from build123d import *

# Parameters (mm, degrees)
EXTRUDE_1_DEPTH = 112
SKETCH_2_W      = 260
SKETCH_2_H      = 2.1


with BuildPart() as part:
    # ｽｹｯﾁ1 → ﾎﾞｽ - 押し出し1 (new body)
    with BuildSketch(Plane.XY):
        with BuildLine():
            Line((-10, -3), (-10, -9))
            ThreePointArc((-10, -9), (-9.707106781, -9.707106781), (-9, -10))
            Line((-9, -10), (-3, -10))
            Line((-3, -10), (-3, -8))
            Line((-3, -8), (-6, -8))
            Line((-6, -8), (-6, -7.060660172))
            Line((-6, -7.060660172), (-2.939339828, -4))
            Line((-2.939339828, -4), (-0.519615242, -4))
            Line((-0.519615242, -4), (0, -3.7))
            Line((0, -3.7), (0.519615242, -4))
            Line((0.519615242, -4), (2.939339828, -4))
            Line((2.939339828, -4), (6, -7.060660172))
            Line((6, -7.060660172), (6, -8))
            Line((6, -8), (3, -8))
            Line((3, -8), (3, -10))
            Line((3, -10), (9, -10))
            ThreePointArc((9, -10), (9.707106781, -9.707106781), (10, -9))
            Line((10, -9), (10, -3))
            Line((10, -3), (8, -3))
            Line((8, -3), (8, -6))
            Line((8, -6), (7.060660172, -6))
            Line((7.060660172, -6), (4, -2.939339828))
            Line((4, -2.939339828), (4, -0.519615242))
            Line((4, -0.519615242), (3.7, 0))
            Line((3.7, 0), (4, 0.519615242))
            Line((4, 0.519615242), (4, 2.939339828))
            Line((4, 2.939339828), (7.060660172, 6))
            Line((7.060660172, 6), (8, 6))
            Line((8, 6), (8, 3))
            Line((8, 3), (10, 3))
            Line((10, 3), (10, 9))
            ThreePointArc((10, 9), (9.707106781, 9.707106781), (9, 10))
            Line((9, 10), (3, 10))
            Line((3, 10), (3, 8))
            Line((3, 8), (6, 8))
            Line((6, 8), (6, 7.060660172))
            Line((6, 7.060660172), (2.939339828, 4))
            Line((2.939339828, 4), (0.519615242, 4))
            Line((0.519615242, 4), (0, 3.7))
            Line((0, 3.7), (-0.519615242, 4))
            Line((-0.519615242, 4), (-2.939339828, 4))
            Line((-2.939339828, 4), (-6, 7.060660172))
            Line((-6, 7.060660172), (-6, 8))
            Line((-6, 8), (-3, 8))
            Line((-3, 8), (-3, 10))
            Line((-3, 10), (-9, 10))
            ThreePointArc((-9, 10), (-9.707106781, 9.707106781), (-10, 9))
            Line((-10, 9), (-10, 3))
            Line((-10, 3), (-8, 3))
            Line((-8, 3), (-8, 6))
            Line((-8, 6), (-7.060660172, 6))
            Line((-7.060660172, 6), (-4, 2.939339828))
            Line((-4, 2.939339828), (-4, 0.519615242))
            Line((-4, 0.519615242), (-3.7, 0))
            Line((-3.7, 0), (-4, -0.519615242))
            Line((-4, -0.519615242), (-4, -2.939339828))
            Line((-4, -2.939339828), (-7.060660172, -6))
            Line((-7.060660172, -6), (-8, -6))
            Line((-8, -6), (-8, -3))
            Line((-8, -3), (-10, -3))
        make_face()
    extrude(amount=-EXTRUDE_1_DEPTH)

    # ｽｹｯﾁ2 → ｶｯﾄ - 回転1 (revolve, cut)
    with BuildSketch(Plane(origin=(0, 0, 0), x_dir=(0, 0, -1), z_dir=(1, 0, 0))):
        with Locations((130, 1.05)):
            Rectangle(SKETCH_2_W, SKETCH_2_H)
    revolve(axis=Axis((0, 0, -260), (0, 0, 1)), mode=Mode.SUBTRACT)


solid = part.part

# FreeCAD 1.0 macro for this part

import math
import FreeCAD as App
import Part
import Sketcher
Q = App.Units.Quantity


def add_polygon(sketch, points):
    """Adds a closed chain of lines whose ends are joined by coincident constraints."""
    first, n = sketch.GeometryCount, len(points)
    for a, b in zip(points, points[1:] + points[:1]):
        sketch.addGeometry(Part.LineSegment(App.Vector(*a, 0), App.Vector(*b, 0)), False)
    for i in range(n):
        sketch.addConstraint(Sketcher.Constraint("Coincident", first + i, 2, first + (i + 1) % n, 1))

doc = App.newDocument("Part")
params = doc.addObject("Spreadsheet::Sheet", "Params")
for row, (alias, value) in enumerate([
    ("sketch1_radius", "1 mm"),
    ("sketch1_width", "6 mm"),
    ("sketch1_width2", "3 mm"),
    ("sketch1_width3", "2 mm"),
    ("sketch1_length", "0.6 mm"),
    ("pad1_length", "112 mm"),
    ("sketch2_height", "260 mm"),
    ("sketch2_width", "2.1 mm"),
    ("groove_angle", "360 deg"),
], start=1):
    params.set(f"A{row}", alias)
    params.set(f"B{row}", "=" + value)
    params.setAlias(f"B{row}", alias)

body = doc.addObject("PartDesign::Body", "Body")

# Sketch on XY plane
sketch1 = body.newObject("Sketcher::SketchObject", "Sketch")
sketch1.AttachmentSupport = (doc.getObject("XY_Plane"), [""])
sketch1.MapMode = "FlatFace"
sketch1.addGeometry(Part.LineSegment(App.Vector(-10, -3, 0), App.Vector(-10, -9, 0)), False)
sketch1.addGeometry(Part.ArcOfCircle(Part.Circle(App.Vector(-9, -9, 0), App.Vector(0, 0, 1), 1), math.radians(-180), math.radians(-90)), False)
sketch1.addGeometry(Part.LineSegment(App.Vector(-9, -10, 0), App.Vector(-3, -10, 0)), False)
sketch1.addGeometry(Part.LineSegment(App.Vector(-3, -10, 0), App.Vector(-3, -8, 0)), False)
sketch1.addGeometry(Part.LineSegment(App.Vector(-3, -8, 0), App.Vector(-6, -8, 0)), False)
sketch1.addGeometry(Part.LineSegment(App.Vector(-6, -8, 0), App.Vector(-6, -7.1, 0)), False)
sketch1.addGeometry(Part.LineSegment(App.Vector(-6, -7.1, 0), App.Vector(-2.9, -4, 0)), False)
sketch1.addGeometry(Part.LineSegment(App.Vector(-2.9, -4, 0), App.Vector(-0.5, -4, 0)), False)
sketch1.addGeometry(Part.LineSegment(App.Vector(-0.5, -4, 0), App.Vector(0, -3.7, 0)), False)
sketch1.addGeometry(Part.LineSegment(App.Vector(0, -3.7, 0), App.Vector(0.5, -4, 0)), False)
sketch1.addGeometry(Part.LineSegment(App.Vector(0.5, -4, 0), App.Vector(2.9, -4, 0)), False)
sketch1.addGeometry(Part.LineSegment(App.Vector(2.9, -4, 0), App.Vector(6, -7.1, 0)), False)
sketch1.addGeometry(Part.LineSegment(App.Vector(6, -7.1, 0), App.Vector(6, -8, 0)), False)
sketch1.addGeometry(Part.LineSegment(App.Vector(6, -8, 0), App.Vector(3, -8, 0)), False)
sketch1.addGeometry(Part.LineSegment(App.Vector(3, -8, 0), App.Vector(3, -10, 0)), False)
sketch1.addGeometry(Part.LineSegment(App.Vector(3, -10, 0), App.Vector(9, -10, 0)), False)
sketch1.addGeometry(Part.ArcOfCircle(Part.Circle(App.Vector(9, -9, 0), App.Vector(0, 0, 1), 1), math.radians(-90), math.radians(0)), False)
sketch1.addGeometry(Part.LineSegment(App.Vector(10, -9, 0), App.Vector(10, -3, 0)), False)
sketch1.addGeometry(Part.LineSegment(App.Vector(10, -3, 0), App.Vector(8, -3, 0)), False)
sketch1.addGeometry(Part.LineSegment(App.Vector(8, -3, 0), App.Vector(8, -6, 0)), False)
sketch1.addGeometry(Part.LineSegment(App.Vector(8, -6, 0), App.Vector(7.1, -6, 0)), False)
sketch1.addGeometry(Part.LineSegment(App.Vector(7.1, -6, 0), App.Vector(4, -2.9, 0)), False)
sketch1.addGeometry(Part.LineSegment(App.Vector(4, -2.9, 0), App.Vector(4, -0.5, 0)), False)
sketch1.addGeometry(Part.LineSegment(App.Vector(4, -0.5, 0), App.Vector(3.7, 0, 0)), False)
sketch1.addGeometry(Part.LineSegment(App.Vector(3.7, 0, 0), App.Vector(4, 0.5, 0)), False)
sketch1.addGeometry(Part.LineSegment(App.Vector(4, 0.5, 0), App.Vector(4, 2.9, 0)), False)
sketch1.addGeometry(Part.LineSegment(App.Vector(4, 2.9, 0), App.Vector(7.1, 6, 0)), False)
sketch1.addGeometry(Part.LineSegment(App.Vector(7.1, 6, 0), App.Vector(8, 6, 0)), False)
sketch1.addGeometry(Part.LineSegment(App.Vector(8, 6, 0), App.Vector(8, 3, 0)), False)
sketch1.addGeometry(Part.LineSegment(App.Vector(8, 3, 0), App.Vector(10, 3, 0)), False)
sketch1.addGeometry(Part.LineSegment(App.Vector(10, 3, 0), App.Vector(10, 9, 0)), False)
sketch1.addGeometry(Part.ArcOfCircle(Part.Circle(App.Vector(9, 9, 0), App.Vector(0, 0, 1), 1), math.radians(0), math.radians(90)), False)
sketch1.addGeometry(Part.LineSegment(App.Vector(9, 10, 0), App.Vector(3, 10, 0)), False)
sketch1.addGeometry(Part.LineSegment(App.Vector(3, 10, 0), App.Vector(3, 8, 0)), False)
sketch1.addGeometry(Part.LineSegment(App.Vector(3, 8, 0), App.Vector(6, 8, 0)), False)
sketch1.addGeometry(Part.LineSegment(App.Vector(6, 8, 0), App.Vector(6, 7.1, 0)), False)
sketch1.addGeometry(Part.LineSegment(App.Vector(6, 7.1, 0), App.Vector(2.9, 4, 0)), False)
sketch1.addGeometry(Part.LineSegment(App.Vector(2.9, 4, 0), App.Vector(0.5, 4, 0)), False)
sketch1.addGeometry(Part.LineSegment(App.Vector(0.5, 4, 0), App.Vector(0, 3.7, 0)), False)
sketch1.addGeometry(Part.LineSegment(App.Vector(0, 3.7, 0), App.Vector(-0.5, 4, 0)), False)
sketch1.addGeometry(Part.LineSegment(App.Vector(-0.5, 4, 0), App.Vector(-2.9, 4, 0)), False)
sketch1.addGeometry(Part.LineSegment(App.Vector(-2.9, 4, 0), App.Vector(-6, 7.1, 0)), False)
sketch1.addGeometry(Part.LineSegment(App.Vector(-6, 7.1, 0), App.Vector(-6, 8, 0)), False)
sketch1.addGeometry(Part.LineSegment(App.Vector(-6, 8, 0), App.Vector(-3, 8, 0)), False)
sketch1.addGeometry(Part.LineSegment(App.Vector(-3, 8, 0), App.Vector(-3, 10, 0)), False)
sketch1.addGeometry(Part.LineSegment(App.Vector(-3, 10, 0), App.Vector(-9, 10, 0)), False)
sketch1.addGeometry(Part.ArcOfCircle(Part.Circle(App.Vector(-9, 9, 0), App.Vector(0, 0, 1), 1), math.radians(90), math.radians(180)), False)
sketch1.addGeometry(Part.LineSegment(App.Vector(-10, 9, 0), App.Vector(-10, 3, 0)), False)
sketch1.addGeometry(Part.LineSegment(App.Vector(-10, 3, 0), App.Vector(-8, 3, 0)), False)
sketch1.addGeometry(Part.LineSegment(App.Vector(-8, 3, 0), App.Vector(-8, 6, 0)), False)
sketch1.addGeometry(Part.LineSegment(App.Vector(-8, 6, 0), App.Vector(-7.1, 6, 0)), False)
sketch1.addGeometry(Part.LineSegment(App.Vector(-7.1, 6, 0), App.Vector(-4, 2.9, 0)), False)
sketch1.addGeometry(Part.LineSegment(App.Vector(-4, 2.9, 0), App.Vector(-4, 0.5, 0)), False)
sketch1.addGeometry(Part.LineSegment(App.Vector(-4, 0.5, 0), App.Vector(-3.7, 0, 0)), False)
sketch1.addGeometry(Part.LineSegment(App.Vector(-3.7, 0, 0), App.Vector(-4, -0.5, 0)), False)
sketch1.addGeometry(Part.LineSegment(App.Vector(-4, -0.5, 0), App.Vector(-4, -2.9, 0)), False)
sketch1.addGeometry(Part.LineSegment(App.Vector(-4, -2.9, 0), App.Vector(-7.1, -6, 0)), False)
sketch1.addGeometry(Part.LineSegment(App.Vector(-7.1, -6, 0), App.Vector(-8, -6, 0)), False)
sketch1.addGeometry(Part.LineSegment(App.Vector(-8, -6, 0), App.Vector(-8, -3, 0)), False)
sketch1.addGeometry(Part.LineSegment(App.Vector(-8, -3, 0), App.Vector(-10, -3, 0)), False)
sketch1.addConstraint(Sketcher.Constraint("Tangent", 0, 2, 1, 1))
sketch1.addConstraint(Sketcher.Constraint("Tangent", 1, 2, 2, 1))
sketch1.addConstraint(Sketcher.Constraint("Coincident", 2, 2, 3, 1))
sketch1.addConstraint(Sketcher.Constraint("Coincident", 3, 2, 4, 1))
sketch1.addConstraint(Sketcher.Constraint("Coincident", 4, 2, 5, 1))
sketch1.addConstraint(Sketcher.Constraint("Coincident", 5, 2, 6, 1))
sketch1.addConstraint(Sketcher.Constraint("Coincident", 6, 2, 7, 1))
sketch1.addConstraint(Sketcher.Constraint("Coincident", 7, 2, 8, 1))
sketch1.addConstraint(Sketcher.Constraint("Coincident", 8, 2, 9, 1))
sketch1.addConstraint(Sketcher.Constraint("Coincident", 9, 2, 10, 1))
sketch1.addConstraint(Sketcher.Constraint("Coincident", 10, 2, 11, 1))
sketch1.addConstraint(Sketcher.Constraint("Coincident", 11, 2, 12, 1))
sketch1.addConstraint(Sketcher.Constraint("Coincident", 12, 2, 13, 1))
sketch1.addConstraint(Sketcher.Constraint("Coincident", 13, 2, 14, 1))
sketch1.addConstraint(Sketcher.Constraint("Coincident", 14, 2, 15, 1))
sketch1.addConstraint(Sketcher.Constraint("Tangent", 15, 2, 16, 1))
sketch1.addConstraint(Sketcher.Constraint("Tangent", 16, 2, 17, 1))
sketch1.addConstraint(Sketcher.Constraint("Coincident", 17, 2, 18, 1))
sketch1.addConstraint(Sketcher.Constraint("Coincident", 18, 2, 19, 1))
sketch1.addConstraint(Sketcher.Constraint("Coincident", 19, 2, 20, 1))
sketch1.addConstraint(Sketcher.Constraint("Coincident", 20, 2, 21, 1))
sketch1.addConstraint(Sketcher.Constraint("Coincident", 21, 2, 22, 1))
sketch1.addConstraint(Sketcher.Constraint("Coincident", 22, 2, 23, 1))
sketch1.addConstraint(Sketcher.Constraint("Coincident", 23, 2, 24, 1))
sketch1.addConstraint(Sketcher.Constraint("Coincident", 24, 2, 25, 1))
sketch1.addConstraint(Sketcher.Constraint("Coincident", 25, 2, 26, 1))
sketch1.addConstraint(Sketcher.Constraint("Coincident", 26, 2, 27, 1))
sketch1.addConstraint(Sketcher.Constraint("Coincident", 27, 2, 28, 1))
sketch1.addConstraint(Sketcher.Constraint("Coincident", 28, 2, 29, 1))
sketch1.addConstraint(Sketcher.Constraint("Coincident", 29, 2, 30, 1))
sketch1.addConstraint(Sketcher.Constraint("Tangent", 30, 2, 31, 1))
sketch1.addConstraint(Sketcher.Constraint("Tangent", 31, 2, 32, 1))
sketch1.addConstraint(Sketcher.Constraint("Coincident", 32, 2, 33, 1))
sketch1.addConstraint(Sketcher.Constraint("Coincident", 33, 2, 34, 1))
sketch1.addConstraint(Sketcher.Constraint("Coincident", 34, 2, 35, 1))
sketch1.addConstraint(Sketcher.Constraint("Coincident", 35, 2, 36, 1))
sketch1.addConstraint(Sketcher.Constraint("Coincident", 36, 2, 37, 1))
sketch1.addConstraint(Sketcher.Constraint("Coincident", 37, 2, 38, 1))
sketch1.addConstraint(Sketcher.Constraint("Coincident", 38, 2, 39, 1))
sketch1.addConstraint(Sketcher.Constraint("Coincident", 39, 2, 40, 1))
sketch1.addConstraint(Sketcher.Constraint("Coincident", 40, 2, 41, 1))
sketch1.addConstraint(Sketcher.Constraint("Coincident", 41, 2, 42, 1))
sketch1.addConstraint(Sketcher.Constraint("Coincident", 42, 2, 43, 1))
sketch1.addConstraint(Sketcher.Constraint("Coincident", 43, 2, 44, 1))
sketch1.addConstraint(Sketcher.Constraint("Coincident", 44, 2, 45, 1))
sketch1.addConstraint(Sketcher.Constraint("Tangent", 45, 2, 46, 1))
sketch1.addConstraint(Sketcher.Constraint("Tangent", 46, 2, 47, 1))
sketch1.addConstraint(Sketcher.Constraint("Coincident", 47, 2, 48, 1))
sketch1.addConstraint(Sketcher.Constraint("Coincident", 48, 2, 49, 1))
sketch1.addConstraint(Sketcher.Constraint("Coincident", 49, 2, 50, 1))
sketch1.addConstraint(Sketcher.Constraint("Coincident", 50, 2, 51, 1))
sketch1.addConstraint(Sketcher.Constraint("Coincident", 51, 2, 52, 1))
sketch1.addConstraint(Sketcher.Constraint("Coincident", 52, 2, 53, 1))
sketch1.addConstraint(Sketcher.Constraint("Coincident", 53, 2, 54, 1))
sketch1.addConstraint(Sketcher.Constraint("Coincident", 54, 2, 55, 1))
sketch1.addConstraint(Sketcher.Constraint("Coincident", 55, 2, 56, 1))
sketch1.addConstraint(Sketcher.Constraint("Coincident", 56, 2, 57, 1))
sketch1.addConstraint(Sketcher.Constraint("Coincident", 57, 2, 58, 1))
sketch1.addConstraint(Sketcher.Constraint("Coincident", 58, 2, 59, 1))
sketch1.addConstraint(Sketcher.Constraint("Coincident", 59, 2, 0, 1))
sketch1.addConstraint(Sketcher.Constraint("Vertical", 0))
sketch1.addConstraint(Sketcher.Constraint("Horizontal", 2))
sketch1.addConstraint(Sketcher.Constraint("Vertical", 3))
sketch1.addConstraint(Sketcher.Constraint("Horizontal", 4))
sketch1.addConstraint(Sketcher.Constraint("Vertical", 5))
sketch1.addConstraint(Sketcher.Constraint("Horizontal", 7))
sketch1.addConstraint(Sketcher.Constraint("Horizontal", 10))
sketch1.addConstraint(Sketcher.Constraint("Vertical", 12))
sketch1.addConstraint(Sketcher.Constraint("Horizontal", 13))
sketch1.addConstraint(Sketcher.Constraint("Vertical", 14))
sketch1.addConstraint(Sketcher.Constraint("Horizontal", 15))
sketch1.addConstraint(Sketcher.Constraint("Vertical", 17))
sketch1.addConstraint(Sketcher.Constraint("Horizontal", 18))
sketch1.addConstraint(Sketcher.Constraint("Vertical", 19))
sketch1.addConstraint(Sketcher.Constraint("Horizontal", 20))
sketch1.addConstraint(Sketcher.Constraint("Vertical", 22))
sketch1.addConstraint(Sketcher.Constraint("Vertical", 25))
sketch1.addConstraint(Sketcher.Constraint("Horizontal", 27))
sketch1.addConstraint(Sketcher.Constraint("Vertical", 28))
sketch1.addConstraint(Sketcher.Constraint("Horizontal", 29))
sketch1.addConstraint(Sketcher.Constraint("Vertical", 30))
sketch1.addConstraint(Sketcher.Constraint("Horizontal", 32))
sketch1.addConstraint(Sketcher.Constraint("Vertical", 33))
sketch1.addConstraint(Sketcher.Constraint("Horizontal", 34))
sketch1.addConstraint(Sketcher.Constraint("Vertical", 35))
sketch1.addConstraint(Sketcher.Constraint("Horizontal", 37))
sketch1.addConstraint(Sketcher.Constraint("Horizontal", 40))
sketch1.addConstraint(Sketcher.Constraint("Vertical", 42))
sketch1.addConstraint(Sketcher.Constraint("Horizontal", 43))
sketch1.addConstraint(Sketcher.Constraint("Vertical", 44))
sketch1.addConstraint(Sketcher.Constraint("Horizontal", 45))
sketch1.addConstraint(Sketcher.Constraint("Vertical", 47))
sketch1.addConstraint(Sketcher.Constraint("Horizontal", 48))
sketch1.addConstraint(Sketcher.Constraint("Vertical", 49))
sketch1.addConstraint(Sketcher.Constraint("Horizontal", 50))
sketch1.addConstraint(Sketcher.Constraint("Vertical", 52))
sketch1.addConstraint(Sketcher.Constraint("Vertical", 55))
sketch1.addConstraint(Sketcher.Constraint("Horizontal", 57))
sketch1.addConstraint(Sketcher.Constraint("Vertical", 58))
sketch1.addConstraint(Sketcher.Constraint("Horizontal", 59))
sketch1.addConstraint(Sketcher.Constraint("Equal", 1, 16))
sketch1.addConstraint(Sketcher.Constraint("Equal", 16, 31))
sketch1.addConstraint(Sketcher.Constraint("Equal", 31, 46))
sketch1.addConstraint(Sketcher.Constraint("Symmetric", 1, 3, 31, 3, -1, 1))
sketch1.addConstraint(Sketcher.Constraint("Symmetric", 16, 3, 46, 3, -1, 1))
sketch1.addConstraint(Sketcher.Constraint("Symmetric", 3, 2, 33, 2, -1, 1))
sketch1.addConstraint(Sketcher.Constraint("Symmetric", 5, 2, 35, 2, -1, 1))
sketch1.addConstraint(Sketcher.Constraint("Symmetric", 6, 2, 36, 2, -1, 1))
sketch1.addConstraint(Sketcher.Constraint("Symmetric", 8, 2, 38, 2, -1, 1))
sketch1.addConstraint(Sketcher.Constraint("Symmetric", 9, 2, 39, 2, -1, 1))
sketch1.addConstraint(Sketcher.Constraint("Symmetric", 11, 2, 41, 2, -1, 1))
sketch1.addConstraint(Sketcher.Constraint("Symmetric", 13, 2, 43, 2, -1, 1))
sketch1.addConstraint(Sketcher.Constraint("Symmetric", 18, 2, 48, 2, -1, 1))
sketch1.addConstraint(Sketcher.Constraint("Symmetric", 20, 2, 50, 2, -1, 1))
sketch1.addConstraint(Sketcher.Constraint("Symmetric", 21, 2, 51, 2, -1, 1))
sketch1.addConstraint(Sketcher.Constraint("Symmetric", 23, 2, 53, 2, -1, 1))
sketch1.addConstraint(Sketcher.Constraint("Symmetric", 24, 2, 54, 2, -1, 1))
sketch1.addConstraint(Sketcher.Constraint("Symmetric", 26, 2, 56, 2, -1, 1))
sketch1.addConstraint(Sketcher.Constraint("Symmetric", 28, 2, 58, 2, -1, 1))
sketch1.addConstraint(Sketcher.Constraint("Symmetric", 1, 3, 16, 3, -2))
sketch1.addConstraint(Sketcher.Constraint("Symmetric", 7, 2, 9, 2, -2))
sketch1.addConstraint(Sketcher.Constraint("Symmetric", 5, 2, 11, 2, -2))
sketch1.addConstraint(Sketcher.Constraint("Symmetric", 3, 2, 13, 2, -2))
sketch1.addConstraint(Sketcher.Constraint("Symmetric", 28, 2, 48, 2, -2))
sketch1.addConstraint(Sketcher.Constraint("Symmetric", 26, 2, 50, 2, -2))
sketch1.addConstraint(Sketcher.Constraint("Symmetric", 25, 2, 51, 2, -2))
sketch1.addConstraint(Sketcher.Constraint("PointOnObject", 8, 2, -2))
sketch1.addConstraint(Sketcher.Constraint("PointOnObject", 23, 2, -1))
sketch1.addConstraint(Sketcher.Constraint("Perpendicular", 6, 11))
sketch1.addConstraint(Sketcher.Constraint("Parallel", 11, 21))
sketch1.addConstraint(Sketcher.Constraint("Perpendicular", 8, 23))
sketch1.addConstraint(Sketcher.Constraint("Perpendicular", 9, 24))
sketch1.addConstraint(Sketcher.Constraint("Perpendicular", 21, 26))
sketch1.addConstraint(Sketcher.Constraint("Perpendicular", 23, 38))
sketch1.addConstraint(Sketcher.Constraint("Perpendicular", 36, 41))
sketch1.addConstraint(Sketcher.Constraint("Perpendicular", 38, 53))
sketch1.addConstraint(Sketcher.Constraint("Perpendicular", 51, 56))
sketch1.addConstraint(Sketcher.Constraint("Equal", 45, 0))
sketch1.addConstraint(Sketcher.Constraint("Equal", 59, 3))
sketch1.addConstraint(Sketcher.Constraint("Equal", 57, 5))
sketch1.addConstraint(Sketcher.Constraint("Equal", 43, 19))
sketch1.addConstraint(Sketcher.Constraint("Equal", 40, 22))
sketch1.addConstraint(Sketcher.Constraint("Equal", 11, 21))
sketch1.addConstraint(Sketcher.Constraint("Equal", 9, 23))
sketch1.addConstraint(Sketcher.Constraint("Radius", 1, Q("1 mm")))
sketch1.addConstraint(Sketcher.Constraint("DistanceX", 2, 1, 2, 2, Q("6 mm")))
sketch1.addConstraint(Sketcher.Constraint("DistanceX", 4, 2, 4, 1, Q("3 mm")))
sketch1.addConstraint(Sketcher.Constraint("DistanceX", 18, 2, 18, 1, Q("2 mm")))
sketch1.addConstraint(Sketcher.Constraint("Angle", 8, Q("30 deg")))
sketch1.addConstraint(Sketcher.Constraint("DistanceX", 1, 3, -1, 1, Q("9 mm")))
sketch1.addConstraint(Sketcher.Constraint("DistanceY", 6, 2, -1, 1, Q("4 mm")))
sketch1.addConstraint(Sketcher.Constraint("Distance", 8, Q("0.6 mm")))
sketch1.addConstraint(Sketcher.Constraint("DistanceX", 20, 2, 20, 1, Q("0.93934 mm")))
sketch1.setExpression("Constraints[144]", "Params.sketch1_radius")
sketch1.setExpression("Constraints[145]", "Params.sketch1_width")
sketch1.setExpression("Constraints[146]", "Params.sketch1_width2")
sketch1.setExpression("Constraints[147]", "Params.sketch1_width3")
sketch1.setExpression("Constraints[151]", "Params.sketch1_length")
pad1 = body.newObject("PartDesign::Pad", "Pad")
pad1.Profile = sketch1
pad1.setExpression("Length", "Params.pad1_length")
pad1.Reversed = True

# Sketch on YZ plane
sketch2 = body.newObject("Sketcher::SketchObject", "Sketch001")
sketch2.AttachmentSupport = (doc.getObject("YZ_Plane"), [""])
sketch2.MapMode = "FlatFace"
add_polygon(sketch2, [(2.1, 0), (0, 0), (0, -260), (2.1, -260)])  # lines 0-3
sketch2.addConstraint(Sketcher.Constraint("Horizontal", 0))
sketch2.addConstraint(Sketcher.Constraint("Vertical", 1))
sketch2.addConstraint(Sketcher.Constraint("Horizontal", 2))
sketch2.addConstraint(Sketcher.Constraint("Vertical", 3))
sketch2.addConstraint(Sketcher.Constraint("Coincident", 0, 2, -1, 1))
sketch2.addConstraint(Sketcher.Constraint("DistanceY", 1, 2, 1, 1, Q("260 mm")))
sketch2.addConstraint(Sketcher.Constraint("DistanceX", 0, 2, 0, 1, Q("2.1 mm")))
sketch2.setExpression("Constraints[9]", "Params.sketch2_height")
sketch2.setExpression("Constraints[10]", "Params.sketch2_width")
groove = body.newObject("PartDesign::Groove", "Groove")
groove.Profile = sketch2
groove.ReferenceAxis = (sketch2, ["V_Axis"])
groove.setExpression("Angle", "Params.groove_angle")

doc.recompute()
